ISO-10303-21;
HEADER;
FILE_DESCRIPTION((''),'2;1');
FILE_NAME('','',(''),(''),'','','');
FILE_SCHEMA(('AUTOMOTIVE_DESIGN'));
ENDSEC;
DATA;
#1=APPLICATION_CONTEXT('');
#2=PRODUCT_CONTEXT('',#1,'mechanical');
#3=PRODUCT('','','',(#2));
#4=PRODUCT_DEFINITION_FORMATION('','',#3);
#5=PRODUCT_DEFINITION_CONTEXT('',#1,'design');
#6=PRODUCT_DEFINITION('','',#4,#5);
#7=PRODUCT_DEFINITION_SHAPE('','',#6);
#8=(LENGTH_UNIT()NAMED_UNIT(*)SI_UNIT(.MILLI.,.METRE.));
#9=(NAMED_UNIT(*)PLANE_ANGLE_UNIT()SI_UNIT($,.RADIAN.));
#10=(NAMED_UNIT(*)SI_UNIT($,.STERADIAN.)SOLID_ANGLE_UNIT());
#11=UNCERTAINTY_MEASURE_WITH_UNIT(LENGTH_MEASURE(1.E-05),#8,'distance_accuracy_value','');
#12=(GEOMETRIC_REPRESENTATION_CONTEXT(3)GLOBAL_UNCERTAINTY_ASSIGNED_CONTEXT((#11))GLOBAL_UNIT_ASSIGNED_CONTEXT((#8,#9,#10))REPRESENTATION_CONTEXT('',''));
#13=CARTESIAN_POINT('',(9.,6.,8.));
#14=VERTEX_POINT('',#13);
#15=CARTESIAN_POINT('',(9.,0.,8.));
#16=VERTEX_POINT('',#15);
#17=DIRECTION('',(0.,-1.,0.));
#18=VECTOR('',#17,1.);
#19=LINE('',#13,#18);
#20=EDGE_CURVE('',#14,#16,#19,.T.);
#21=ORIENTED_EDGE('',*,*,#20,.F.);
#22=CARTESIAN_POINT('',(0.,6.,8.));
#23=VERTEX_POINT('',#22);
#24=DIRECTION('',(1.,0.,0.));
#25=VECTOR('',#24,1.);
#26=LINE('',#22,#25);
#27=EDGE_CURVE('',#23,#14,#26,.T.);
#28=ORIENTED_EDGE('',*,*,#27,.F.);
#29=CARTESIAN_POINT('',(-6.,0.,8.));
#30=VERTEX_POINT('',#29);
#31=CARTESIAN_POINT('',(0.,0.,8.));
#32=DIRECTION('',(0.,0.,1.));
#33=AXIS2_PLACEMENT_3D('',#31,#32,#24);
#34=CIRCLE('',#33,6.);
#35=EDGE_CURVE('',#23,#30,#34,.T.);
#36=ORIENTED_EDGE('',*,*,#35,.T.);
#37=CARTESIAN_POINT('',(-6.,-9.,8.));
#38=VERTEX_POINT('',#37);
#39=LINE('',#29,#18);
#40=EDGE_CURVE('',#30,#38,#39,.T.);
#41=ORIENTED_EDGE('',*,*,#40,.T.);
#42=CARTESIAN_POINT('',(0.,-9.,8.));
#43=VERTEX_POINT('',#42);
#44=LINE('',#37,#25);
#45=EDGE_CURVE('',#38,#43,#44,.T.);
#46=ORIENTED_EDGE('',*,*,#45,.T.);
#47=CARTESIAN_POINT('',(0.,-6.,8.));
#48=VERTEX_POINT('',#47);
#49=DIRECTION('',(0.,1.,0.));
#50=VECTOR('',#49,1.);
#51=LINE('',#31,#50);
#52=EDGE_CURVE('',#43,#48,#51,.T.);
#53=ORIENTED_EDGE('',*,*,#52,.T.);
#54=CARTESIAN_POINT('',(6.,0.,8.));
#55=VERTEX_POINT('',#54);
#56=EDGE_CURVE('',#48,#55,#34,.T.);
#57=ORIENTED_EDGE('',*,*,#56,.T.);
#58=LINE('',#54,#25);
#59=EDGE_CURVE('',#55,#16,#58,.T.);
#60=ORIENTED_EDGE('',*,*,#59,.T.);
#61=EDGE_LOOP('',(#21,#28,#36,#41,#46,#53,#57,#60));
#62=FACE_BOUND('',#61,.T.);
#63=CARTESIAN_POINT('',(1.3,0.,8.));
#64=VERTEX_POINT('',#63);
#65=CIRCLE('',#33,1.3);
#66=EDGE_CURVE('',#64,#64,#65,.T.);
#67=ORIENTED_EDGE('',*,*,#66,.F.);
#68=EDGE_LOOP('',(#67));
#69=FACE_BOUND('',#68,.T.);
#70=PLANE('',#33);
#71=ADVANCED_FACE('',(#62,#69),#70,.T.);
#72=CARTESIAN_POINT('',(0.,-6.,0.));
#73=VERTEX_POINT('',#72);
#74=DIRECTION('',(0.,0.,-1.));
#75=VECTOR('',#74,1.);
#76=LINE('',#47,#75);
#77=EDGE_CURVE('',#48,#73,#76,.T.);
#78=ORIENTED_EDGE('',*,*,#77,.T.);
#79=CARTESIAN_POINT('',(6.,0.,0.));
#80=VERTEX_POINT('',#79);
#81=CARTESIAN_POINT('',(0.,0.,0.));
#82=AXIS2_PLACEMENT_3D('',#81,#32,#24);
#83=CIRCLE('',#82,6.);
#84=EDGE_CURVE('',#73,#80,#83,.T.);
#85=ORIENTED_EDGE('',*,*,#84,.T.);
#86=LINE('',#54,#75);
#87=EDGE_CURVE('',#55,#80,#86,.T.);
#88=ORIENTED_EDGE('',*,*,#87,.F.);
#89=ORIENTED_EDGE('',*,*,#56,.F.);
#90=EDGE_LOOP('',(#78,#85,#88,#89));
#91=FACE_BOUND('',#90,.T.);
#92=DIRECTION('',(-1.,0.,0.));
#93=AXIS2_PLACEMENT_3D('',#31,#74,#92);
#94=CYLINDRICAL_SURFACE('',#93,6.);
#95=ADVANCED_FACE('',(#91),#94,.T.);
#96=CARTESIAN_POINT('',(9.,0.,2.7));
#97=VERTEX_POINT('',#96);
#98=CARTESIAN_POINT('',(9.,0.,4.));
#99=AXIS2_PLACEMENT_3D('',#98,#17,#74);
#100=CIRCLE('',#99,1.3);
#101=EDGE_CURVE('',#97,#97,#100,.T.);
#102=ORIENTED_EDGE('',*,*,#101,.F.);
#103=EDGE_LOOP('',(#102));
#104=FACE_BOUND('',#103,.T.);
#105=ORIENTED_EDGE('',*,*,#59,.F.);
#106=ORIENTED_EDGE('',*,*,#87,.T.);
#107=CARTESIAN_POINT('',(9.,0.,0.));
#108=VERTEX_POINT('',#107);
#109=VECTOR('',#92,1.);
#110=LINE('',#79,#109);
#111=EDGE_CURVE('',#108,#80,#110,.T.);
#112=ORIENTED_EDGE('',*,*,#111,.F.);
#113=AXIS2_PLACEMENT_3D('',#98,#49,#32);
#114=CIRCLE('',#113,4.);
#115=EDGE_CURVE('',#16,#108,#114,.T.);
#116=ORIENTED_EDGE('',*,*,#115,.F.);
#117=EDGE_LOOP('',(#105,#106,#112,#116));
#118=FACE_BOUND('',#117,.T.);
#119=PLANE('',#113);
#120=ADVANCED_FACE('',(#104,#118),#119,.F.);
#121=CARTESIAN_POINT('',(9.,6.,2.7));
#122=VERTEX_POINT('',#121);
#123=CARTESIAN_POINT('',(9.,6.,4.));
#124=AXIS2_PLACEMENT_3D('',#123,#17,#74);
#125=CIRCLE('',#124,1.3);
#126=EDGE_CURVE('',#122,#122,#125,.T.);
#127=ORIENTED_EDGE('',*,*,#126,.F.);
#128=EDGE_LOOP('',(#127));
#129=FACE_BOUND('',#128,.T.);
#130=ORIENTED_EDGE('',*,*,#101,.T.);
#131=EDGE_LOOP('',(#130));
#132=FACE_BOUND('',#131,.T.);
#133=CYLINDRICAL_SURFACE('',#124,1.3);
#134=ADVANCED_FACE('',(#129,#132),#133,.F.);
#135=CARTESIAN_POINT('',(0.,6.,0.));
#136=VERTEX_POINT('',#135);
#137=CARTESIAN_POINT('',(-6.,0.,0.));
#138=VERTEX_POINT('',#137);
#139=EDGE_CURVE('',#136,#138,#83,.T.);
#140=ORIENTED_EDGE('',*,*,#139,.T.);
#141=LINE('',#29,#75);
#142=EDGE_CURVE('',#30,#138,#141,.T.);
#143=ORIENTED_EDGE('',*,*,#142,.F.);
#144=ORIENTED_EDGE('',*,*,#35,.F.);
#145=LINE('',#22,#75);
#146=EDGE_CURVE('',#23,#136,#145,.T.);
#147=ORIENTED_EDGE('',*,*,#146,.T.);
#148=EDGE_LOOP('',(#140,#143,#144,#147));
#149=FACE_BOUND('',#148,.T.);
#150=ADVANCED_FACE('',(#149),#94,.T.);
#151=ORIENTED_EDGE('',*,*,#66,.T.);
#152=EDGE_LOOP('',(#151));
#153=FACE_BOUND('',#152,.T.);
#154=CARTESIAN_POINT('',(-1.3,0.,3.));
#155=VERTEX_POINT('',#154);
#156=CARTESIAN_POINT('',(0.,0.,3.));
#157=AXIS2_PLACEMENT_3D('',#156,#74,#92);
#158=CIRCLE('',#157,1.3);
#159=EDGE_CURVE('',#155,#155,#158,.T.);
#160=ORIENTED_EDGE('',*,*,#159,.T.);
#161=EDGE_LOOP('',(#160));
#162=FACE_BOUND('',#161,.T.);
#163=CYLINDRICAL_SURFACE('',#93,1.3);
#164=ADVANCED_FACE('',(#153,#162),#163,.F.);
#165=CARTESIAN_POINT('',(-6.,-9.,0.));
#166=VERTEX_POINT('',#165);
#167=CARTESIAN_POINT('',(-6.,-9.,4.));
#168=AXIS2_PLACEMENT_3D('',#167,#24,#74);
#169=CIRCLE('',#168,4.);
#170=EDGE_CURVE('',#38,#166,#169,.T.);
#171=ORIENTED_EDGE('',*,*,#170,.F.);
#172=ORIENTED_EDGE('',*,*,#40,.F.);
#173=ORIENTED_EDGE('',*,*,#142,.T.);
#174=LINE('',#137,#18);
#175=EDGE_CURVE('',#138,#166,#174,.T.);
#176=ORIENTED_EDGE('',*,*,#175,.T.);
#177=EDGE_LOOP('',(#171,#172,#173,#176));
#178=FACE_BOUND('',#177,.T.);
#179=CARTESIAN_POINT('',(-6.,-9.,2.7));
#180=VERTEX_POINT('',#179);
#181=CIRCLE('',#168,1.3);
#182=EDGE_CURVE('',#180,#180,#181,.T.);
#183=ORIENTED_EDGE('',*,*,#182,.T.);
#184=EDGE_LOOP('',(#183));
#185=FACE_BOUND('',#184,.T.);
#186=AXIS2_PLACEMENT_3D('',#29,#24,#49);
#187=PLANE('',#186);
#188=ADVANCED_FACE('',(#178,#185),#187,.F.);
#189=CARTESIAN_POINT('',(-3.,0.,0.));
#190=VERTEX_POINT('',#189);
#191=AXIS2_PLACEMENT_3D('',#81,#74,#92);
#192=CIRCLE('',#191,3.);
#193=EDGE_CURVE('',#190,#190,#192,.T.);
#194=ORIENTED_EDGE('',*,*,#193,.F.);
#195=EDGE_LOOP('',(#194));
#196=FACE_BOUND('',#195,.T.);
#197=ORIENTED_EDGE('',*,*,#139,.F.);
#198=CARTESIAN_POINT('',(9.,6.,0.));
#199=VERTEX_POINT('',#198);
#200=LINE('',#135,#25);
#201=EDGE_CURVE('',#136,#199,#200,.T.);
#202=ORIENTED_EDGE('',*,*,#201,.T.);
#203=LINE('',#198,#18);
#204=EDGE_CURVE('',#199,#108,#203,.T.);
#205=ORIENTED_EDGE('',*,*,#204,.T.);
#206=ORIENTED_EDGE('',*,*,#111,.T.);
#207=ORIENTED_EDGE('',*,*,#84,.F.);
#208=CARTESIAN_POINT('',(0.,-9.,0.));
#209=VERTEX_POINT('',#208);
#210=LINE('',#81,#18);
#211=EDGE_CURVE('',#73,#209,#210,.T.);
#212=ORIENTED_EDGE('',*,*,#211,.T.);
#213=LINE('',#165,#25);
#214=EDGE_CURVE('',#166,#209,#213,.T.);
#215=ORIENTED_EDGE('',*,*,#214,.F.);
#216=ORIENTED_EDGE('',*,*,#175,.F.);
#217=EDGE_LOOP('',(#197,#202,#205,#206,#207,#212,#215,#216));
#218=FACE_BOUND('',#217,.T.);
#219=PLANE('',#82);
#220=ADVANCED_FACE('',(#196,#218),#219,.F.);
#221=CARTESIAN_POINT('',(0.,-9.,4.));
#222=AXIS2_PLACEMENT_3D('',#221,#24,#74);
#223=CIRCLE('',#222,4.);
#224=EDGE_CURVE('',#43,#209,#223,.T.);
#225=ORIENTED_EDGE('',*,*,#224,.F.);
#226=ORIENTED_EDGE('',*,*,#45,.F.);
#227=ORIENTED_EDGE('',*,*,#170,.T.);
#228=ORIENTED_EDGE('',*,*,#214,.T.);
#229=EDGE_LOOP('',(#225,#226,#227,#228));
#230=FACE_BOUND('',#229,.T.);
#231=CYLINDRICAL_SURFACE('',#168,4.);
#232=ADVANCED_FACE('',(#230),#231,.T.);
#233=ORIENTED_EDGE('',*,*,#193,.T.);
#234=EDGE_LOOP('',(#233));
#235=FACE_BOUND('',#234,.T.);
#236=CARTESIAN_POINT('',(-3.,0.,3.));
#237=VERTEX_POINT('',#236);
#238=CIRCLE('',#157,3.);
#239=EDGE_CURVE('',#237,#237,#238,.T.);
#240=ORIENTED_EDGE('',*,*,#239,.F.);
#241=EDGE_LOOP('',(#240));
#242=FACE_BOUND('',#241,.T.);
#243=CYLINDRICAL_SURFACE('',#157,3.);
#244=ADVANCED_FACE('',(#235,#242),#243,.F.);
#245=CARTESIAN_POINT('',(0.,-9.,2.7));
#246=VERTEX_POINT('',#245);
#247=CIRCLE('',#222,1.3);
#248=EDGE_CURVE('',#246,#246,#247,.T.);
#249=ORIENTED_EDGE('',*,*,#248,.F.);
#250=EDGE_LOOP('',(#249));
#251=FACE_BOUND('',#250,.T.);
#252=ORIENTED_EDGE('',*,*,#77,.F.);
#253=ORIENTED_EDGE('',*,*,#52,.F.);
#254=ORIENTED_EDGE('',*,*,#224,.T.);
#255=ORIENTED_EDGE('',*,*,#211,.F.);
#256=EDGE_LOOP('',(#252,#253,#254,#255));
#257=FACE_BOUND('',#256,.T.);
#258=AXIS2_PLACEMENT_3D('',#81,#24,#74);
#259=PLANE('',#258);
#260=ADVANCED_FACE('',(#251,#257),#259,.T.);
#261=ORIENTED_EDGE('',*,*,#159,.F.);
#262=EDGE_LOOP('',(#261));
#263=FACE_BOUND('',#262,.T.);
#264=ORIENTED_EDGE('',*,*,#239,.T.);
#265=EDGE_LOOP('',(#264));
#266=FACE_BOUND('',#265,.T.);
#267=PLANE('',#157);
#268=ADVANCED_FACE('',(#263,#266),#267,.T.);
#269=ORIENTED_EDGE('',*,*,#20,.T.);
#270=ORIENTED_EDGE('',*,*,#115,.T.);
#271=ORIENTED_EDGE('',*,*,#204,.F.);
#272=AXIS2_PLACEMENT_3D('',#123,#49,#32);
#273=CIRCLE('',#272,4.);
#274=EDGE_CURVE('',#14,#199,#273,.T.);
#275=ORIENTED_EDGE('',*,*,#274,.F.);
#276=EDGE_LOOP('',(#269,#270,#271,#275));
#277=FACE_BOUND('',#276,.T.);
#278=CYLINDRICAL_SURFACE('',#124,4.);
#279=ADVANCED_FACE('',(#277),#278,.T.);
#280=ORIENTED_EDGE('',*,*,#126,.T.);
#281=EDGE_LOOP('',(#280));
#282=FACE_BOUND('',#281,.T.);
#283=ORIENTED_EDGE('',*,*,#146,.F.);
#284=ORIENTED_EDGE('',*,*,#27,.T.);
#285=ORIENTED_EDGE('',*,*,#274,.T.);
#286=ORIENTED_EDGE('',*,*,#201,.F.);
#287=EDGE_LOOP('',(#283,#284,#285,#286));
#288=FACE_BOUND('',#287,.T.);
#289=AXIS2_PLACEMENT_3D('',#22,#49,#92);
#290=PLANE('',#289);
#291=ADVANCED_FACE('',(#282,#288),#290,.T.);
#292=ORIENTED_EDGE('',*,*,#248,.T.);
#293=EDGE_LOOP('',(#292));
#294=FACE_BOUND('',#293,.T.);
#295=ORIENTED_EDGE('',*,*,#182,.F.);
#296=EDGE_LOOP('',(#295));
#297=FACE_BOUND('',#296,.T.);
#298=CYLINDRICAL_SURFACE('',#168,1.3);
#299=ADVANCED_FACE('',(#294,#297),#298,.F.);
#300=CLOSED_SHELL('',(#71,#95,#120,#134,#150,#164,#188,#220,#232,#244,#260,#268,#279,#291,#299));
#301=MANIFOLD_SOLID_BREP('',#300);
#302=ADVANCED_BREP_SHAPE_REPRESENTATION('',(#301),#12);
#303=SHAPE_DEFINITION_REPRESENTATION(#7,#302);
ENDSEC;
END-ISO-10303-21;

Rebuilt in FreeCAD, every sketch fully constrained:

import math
import FreeCAD as App
import Part
import Sketcher

V = App.Vector
Q = App.Units.Quantity

doc = App.newDocument("Part")
params = doc.addObject("Spreadsheet::Sheet", "Params")
for row, (alias, value) in enumerate([
    ("sketch1_radius", "6 mm"),
    ("sketch1_diameter", "2.6 mm"),
    ("pad1_length", "8 mm"),
    ("sketch2_radius", "4 mm"),
    ("sketch2_width", "3 mm"),
    ("pad2_length", "6 mm"),
    ("sketch3_radius", "4 mm"),
    ("sketch3_width", "3 mm"),
    ("pad3_length", "6 mm"),
    ("sketch4_diameter", "2.6 mm"),
    ("pocket1_length", "6 mm"),
    ("sketch5_diameter", "2.6 mm"),
    ("pocket2_length", "6 mm"),
    ("sketch6_diameter", "6 mm"),
    ("pocket3_length", "3 mm"),
], start=1):
    params.set(f"A{row}", alias)
    params.set(f"B{row}", "=" + value)
    params.setAlias(f"B{row}", alias)

body = doc.addObject("PartDesign::Body", "Body")

sketch1 = body.newObject("Sketcher::SketchObject", "Sketch")
sketch1.AttachmentSupport = (doc.getObject("XY_Plane"), [""])
sketch1.MapMode = "FlatFace"
sketch1.addGeometry(Part.LineSegment(V(-6, 0, 0), V(-6, -6, 0)), False)
sketch1.addGeometry(Part.LineSegment(V(-6, -6, 0), V(0, -6, 0)), False)
sketch1.addGeometry(Part.ArcOfCircle(Part.Circle(V(0, 0, 0), V(0, 0, 1), 6), math.radians(-90), math.radians(0)), False)
sketch1.addGeometry(Part.LineSegment(V(6, 0, 0), V(6, 6, 0)), False)
sketch1.addGeometry(Part.LineSegment(V(6, 6, 0), V(0, 6, 0)), False)
sketch1.addGeometry(Part.ArcOfCircle(Part.Circle(V(0, 0, 0), V(0, 0, 1), 6), math.radians(90), math.radians(180)), False)
sketch1.addGeometry(Part.Circle(V(0, 0, 0), V(0, 0, 1), 1.3), False)
sketch1.addConstraint(Sketcher.Constraint("Coincident", 0, 2, 1, 1))
sketch1.addConstraint(Sketcher.Constraint("Tangent", 1, 2, 2, 1))
sketch1.addConstraint(Sketcher.Constraint("Tangent", 2, 2, 3, 1))
sketch1.addConstraint(Sketcher.Constraint("Coincident", 3, 2, 4, 1))
sketch1.addConstraint(Sketcher.Constraint("Tangent", 4, 2, 5, 1))
sketch1.addConstraint(Sketcher.Constraint("Tangent", 5, 2, 0, 1))
sketch1.addConstraint(Sketcher.Constraint("Vertical", 0))
sketch1.addConstraint(Sketcher.Constraint("Horizontal", 1))
sketch1.addConstraint(Sketcher.Constraint("Vertical", 3))
sketch1.addConstraint(Sketcher.Constraint("Horizontal", 4))
sketch1.addConstraint(Sketcher.Constraint("Coincident", 2, 3, -1, 1))
sketch1.addConstraint(Sketcher.Constraint("Coincident", 5, 3, -1, 1))
sketch1.addConstraint(Sketcher.Constraint("Coincident", 6, 3, -1, 1))
sketch1.addConstraint(Sketcher.Constraint("Equal", 2, 5))
sketch1.addConstraint(Sketcher.Constraint("Radius", 2, Q("6 mm")))
sketch1.addConstraint(Sketcher.Constraint("Diameter", 6, Q("2.6 mm")))
sketch1.setExpression("Constraints[14]", "Params.sketch1_radius")
sketch1.setExpression("Constraints[15]", "Params.sketch1_diameter")
pad1 = body.newObject("PartDesign::Pad", "Pad")
pad1.Profile = sketch1
pad1.setExpression("Length", "Params.pad1_length")

sketch2 = body.newObject("Sketcher::SketchObject", "Sketch001")
sketch2.AttachmentSupport = (doc.getObject("YZ_Plane"), [""])
sketch2.MapMode = "FlatFace"
sketch2.addGeometry(Part.LineSegment(V(-6, 8, 0), V(-9, 8, 0)), False)
sketch2.addGeometry(Part.ArcOfCircle(Part.Circle(V(-9, 4, 0), V(0, 0, 1), 4), math.radians(90), math.radians(270)), False)
sketch2.addGeometry(Part.LineSegment(V(-9, 0, 0), V(-6, 0, 0)), False)
sketch2.addGeometry(Part.LineSegment(V(-6, 0, 0), V(-6, 8, 0)), False)
sketch2.addConstraint(Sketcher.Constraint("Tangent", 0, 2, 1, 1))
sketch2.addConstraint(Sketcher.Constraint("Tangent", 1, 2, 2, 1))
sketch2.addConstraint(Sketcher.Constraint("Coincident", 2, 2, 3, 1))
sketch2.addConstraint(Sketcher.Constraint("Coincident", 3, 2, 0, 1))
sketch2.addConstraint(Sketcher.Constraint("Horizontal", 0))
sketch2.addConstraint(Sketcher.Constraint("Horizontal", 2))
sketch2.addConstraint(Sketcher.Constraint("Vertical", 3))
sketch2.addConstraint(Sketcher.Constraint("PointOnObject", 1, 2, -1))
sketch2.addConstraint(Sketcher.Constraint("Radius", 1, Q("4 mm")))
sketch2.addConstraint(Sketcher.Constraint("DistanceX", 0, 2, 0, 1, Q("3 mm")))
sketch2.addConstraint(Sketcher.Constraint("DistanceX", 1, 3, -1, 1, Q("9 mm")))
sketch2.setExpression("Constraints[8]", "Params.sketch2_radius")
sketch2.setExpression("Constraints[9]", "Params.sketch2_width")
pad2 = body.newObject("PartDesign::Pad", "Pad001")
pad2.Profile = sketch2
pad2.setExpression("Length", "Params.pad2_length")
pad2.Reversed = True

sketch3 = body.newObject("Sketcher::SketchObject", "Sketch002")
sketch3.AttachmentSupport = (doc.getObject("XZ_Plane"), [""])
sketch3.MapMode = "FlatFace"
sketch3.addGeometry(Part.LineSegment(V(9, 0, 0), V(6, 0, 0)), False)
sketch3.addGeometry(Part.LineSegment(V(6, 0, 0), V(6, 8, 0)), False)
sketch3.addGeometry(Part.LineSegment(V(6, 8, 0), V(9, 8, 0)), False)
sketch3.addGeometry(Part.ArcOfCircle(Part.Circle(V(9, 4, 0), V(0, 0, 1), 4), math.radians(-90), math.radians(90)), False)
sketch3.addConstraint(Sketcher.Constraint("Coincident", 0, 2, 1, 1))
sketch3.addConstraint(Sketcher.Constraint("Coincident", 1, 2, 2, 1))
sketch3.addConstraint(Sketcher.Constraint("Tangent", 2, 2, 3, 2))
sketch3.addConstraint(Sketcher.Constraint("Tangent", 3, 1, 0, 1))
sketch3.addConstraint(Sketcher.Constraint("Horizontal", 0))
sketch3.addConstraint(Sketcher.Constraint("Vertical", 1))
sketch3.addConstraint(Sketcher.Constraint("Horizontal", 2))
sketch3.addConstraint(Sketcher.Constraint("PointOnObject", 0, 2, -1))
sketch3.addConstraint(Sketcher.Constraint("Radius", 3, Q("4 mm")))
sketch3.addConstraint(Sketcher.Constraint("DistanceX", 0, 2, 0, 1, Q("3 mm")))
sketch3.addConstraint(Sketcher.Constraint("DistanceX", -1, 1, 3, 3, Q("9 mm")))
sketch3.setExpression("Constraints[8]", "Params.sketch3_radius")
sketch3.setExpression("Constraints[9]", "Params.sketch3_width")
pad3 = body.newObject("PartDesign::Pad", "Pad002")
pad3.Profile = sketch3
pad3.setExpression("Length", "Params.pad3_length")
pad3.Reversed = True

sketch4 = body.newObject("Sketcher::SketchObject", "Sketch003")
sketch4.AttachmentSupport = (doc.getObject("XZ_Plane"), [""])
sketch4.MapMode = "FlatFace"
sketch4.addGeometry(Part.Circle(V(9, 4, 0), V(0, 0, 1), 1.3), False)
sketch4.addConstraint(Sketcher.Constraint("Diameter", 0, Q("2.6 mm")))
sketch4.addConstraint(Sketcher.Constraint("DistanceX", -1, 1, 0, 3, Q("9 mm")))
sketch4.addConstraint(Sketcher.Constraint("DistanceY", -1, 1, 0, 3, Q("4 mm")))
sketch4.setExpression("Constraints[0]", "Params.sketch4_diameter")
pocket1 = body.newObject("PartDesign::Pocket", "Pocket")
pocket1.Profile = sketch4
pocket1.setExpression("Length", "Params.pocket1_length")

sketch5 = body.newObject("Sketcher::SketchObject", "Sketch004")
sketch5.AttachmentSupport = (doc.getObject("YZ_Plane"), [""])
sketch5.MapMode = "FlatFace"
sketch5.addGeometry(Part.Circle(V(-9, 4, 0), V(0, 0, 1), 1.3), False)
sketch5.addConstraint(Sketcher.Constraint("Diameter", 0, Q("2.6 mm")))
sketch5.addConstraint(Sketcher.Constraint("DistanceX", 0, 3, -1, 1, Q("9 mm")))
sketch5.addConstraint(Sketcher.Constraint("DistanceY", -1, 1, 0, 3, Q("4 mm")))
sketch5.setExpression("Constraints[0]", "Params.sketch5_diameter")
pocket2 = body.newObject("PartDesign::Pocket", "Pocket001")
pocket2.Profile = sketch5
pocket2.setExpression("Length", "Params.pocket2_length")

sketch6 = body.newObject("Sketcher::SketchObject", "Sketch005")
sketch6.AttachmentSupport = (doc.getObject("XY_Plane"), [""])
sketch6.MapMode = "FlatFace"
sketch6.addGeometry(Part.Circle(V(0, 0, 0), V(0, 0, 1), 3), False)
sketch6.addConstraint(Sketcher.Constraint("Coincident", 0, 3, -1, 1))
sketch6.addConstraint(Sketcher.Constraint("Diameter", 0, Q("6 mm")))
sketch6.setExpression("Constraints[1]", "Params.sketch6_diameter")
pocket3 = body.newObject("PartDesign::Pocket", "Pocket002")
pocket3.Profile = sketch6
pocket3.setExpression("Length", "Params.pocket3_length")
pocket3.Reversed = True

doc.recompute()
